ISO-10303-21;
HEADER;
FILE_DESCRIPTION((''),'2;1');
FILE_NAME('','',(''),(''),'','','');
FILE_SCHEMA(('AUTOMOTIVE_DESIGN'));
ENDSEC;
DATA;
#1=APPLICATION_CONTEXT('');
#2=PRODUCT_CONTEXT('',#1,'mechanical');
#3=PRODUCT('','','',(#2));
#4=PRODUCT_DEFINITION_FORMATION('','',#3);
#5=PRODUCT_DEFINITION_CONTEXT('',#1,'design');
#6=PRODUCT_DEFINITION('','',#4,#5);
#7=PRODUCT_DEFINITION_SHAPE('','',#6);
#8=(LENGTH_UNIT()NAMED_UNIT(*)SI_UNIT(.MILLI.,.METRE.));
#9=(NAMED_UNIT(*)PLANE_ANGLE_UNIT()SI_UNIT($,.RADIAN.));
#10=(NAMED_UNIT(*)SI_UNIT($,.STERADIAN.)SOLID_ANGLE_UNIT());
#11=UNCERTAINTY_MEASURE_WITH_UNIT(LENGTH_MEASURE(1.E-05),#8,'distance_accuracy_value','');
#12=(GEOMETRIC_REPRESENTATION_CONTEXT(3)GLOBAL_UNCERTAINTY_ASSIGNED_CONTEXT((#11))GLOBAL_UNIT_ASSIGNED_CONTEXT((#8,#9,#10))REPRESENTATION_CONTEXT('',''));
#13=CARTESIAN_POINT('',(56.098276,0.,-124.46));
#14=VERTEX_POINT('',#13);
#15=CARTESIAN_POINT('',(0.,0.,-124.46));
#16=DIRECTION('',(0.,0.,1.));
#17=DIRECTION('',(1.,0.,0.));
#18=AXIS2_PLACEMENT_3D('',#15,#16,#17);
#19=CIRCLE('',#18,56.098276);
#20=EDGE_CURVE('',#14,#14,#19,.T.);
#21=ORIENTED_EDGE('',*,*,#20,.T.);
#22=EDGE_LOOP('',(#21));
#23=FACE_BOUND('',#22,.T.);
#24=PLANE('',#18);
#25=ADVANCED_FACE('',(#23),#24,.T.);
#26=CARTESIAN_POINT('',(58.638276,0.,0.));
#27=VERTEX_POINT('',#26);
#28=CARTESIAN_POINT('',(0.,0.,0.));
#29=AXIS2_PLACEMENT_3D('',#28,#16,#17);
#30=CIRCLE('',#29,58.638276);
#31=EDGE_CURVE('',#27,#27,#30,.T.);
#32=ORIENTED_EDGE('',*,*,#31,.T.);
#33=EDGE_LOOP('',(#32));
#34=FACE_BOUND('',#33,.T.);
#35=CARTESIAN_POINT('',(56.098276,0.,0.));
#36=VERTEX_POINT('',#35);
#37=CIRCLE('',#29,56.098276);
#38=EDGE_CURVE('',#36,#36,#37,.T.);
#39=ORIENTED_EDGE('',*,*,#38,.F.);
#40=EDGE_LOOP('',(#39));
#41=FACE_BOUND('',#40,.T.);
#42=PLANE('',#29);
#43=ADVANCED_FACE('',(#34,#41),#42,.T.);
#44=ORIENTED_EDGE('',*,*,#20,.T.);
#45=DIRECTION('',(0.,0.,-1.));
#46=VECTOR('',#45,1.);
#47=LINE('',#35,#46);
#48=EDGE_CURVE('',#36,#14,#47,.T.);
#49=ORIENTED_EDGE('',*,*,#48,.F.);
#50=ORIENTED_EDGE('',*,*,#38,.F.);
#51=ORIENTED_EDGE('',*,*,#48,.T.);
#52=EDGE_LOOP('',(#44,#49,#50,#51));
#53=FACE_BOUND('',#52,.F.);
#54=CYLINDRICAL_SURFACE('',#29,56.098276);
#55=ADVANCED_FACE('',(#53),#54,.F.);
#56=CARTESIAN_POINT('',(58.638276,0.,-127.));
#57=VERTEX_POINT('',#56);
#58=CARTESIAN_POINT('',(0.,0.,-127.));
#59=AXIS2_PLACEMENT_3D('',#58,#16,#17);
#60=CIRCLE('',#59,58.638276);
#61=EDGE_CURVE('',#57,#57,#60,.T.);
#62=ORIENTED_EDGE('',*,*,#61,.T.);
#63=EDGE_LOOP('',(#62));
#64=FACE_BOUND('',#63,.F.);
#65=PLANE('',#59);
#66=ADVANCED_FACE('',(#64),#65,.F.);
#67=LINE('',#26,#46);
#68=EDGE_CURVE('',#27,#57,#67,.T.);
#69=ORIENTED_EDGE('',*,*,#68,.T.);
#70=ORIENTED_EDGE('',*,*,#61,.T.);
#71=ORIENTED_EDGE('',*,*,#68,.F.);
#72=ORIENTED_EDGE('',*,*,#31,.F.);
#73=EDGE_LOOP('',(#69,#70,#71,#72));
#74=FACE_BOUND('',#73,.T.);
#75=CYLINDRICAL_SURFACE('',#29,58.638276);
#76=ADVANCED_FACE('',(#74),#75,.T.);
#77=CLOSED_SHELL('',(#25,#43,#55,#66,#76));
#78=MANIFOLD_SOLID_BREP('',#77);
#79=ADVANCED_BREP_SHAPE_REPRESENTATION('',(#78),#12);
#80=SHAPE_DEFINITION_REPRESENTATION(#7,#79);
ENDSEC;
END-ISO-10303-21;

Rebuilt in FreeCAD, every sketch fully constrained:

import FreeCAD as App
import Part
import Sketcher
from FreeCAD import Vector
Q = App.Units.Quantity


def faces_at(feature, points):
    """Names of the faces that lie closest to the given points."""
    faces = feature.Shape.Faces
    near = lambda p: min(range(len(faces)), key=lambda i: faces[i].distToShape(Part.Vertex(*p))[0])
    return sorted({f"Face{near(p) + 1}" for p in points})

doc = App.newDocument("Part")
body = doc.addObject("PartDesign::Body", "Body")

sketch1 = doc.addObject("Sketcher::SketchObject", "Sketch")
body.addObject(sketch1)
sketch1.AttachmentSupport = (doc.XY_Plane, [""])
sketch1.MapMode = "FlatFace"
sketch1.addGeometry(Part.Circle(Vector(0, 0, 0), Vector(0, 0, 1), 59), False)
sketch1.addConstraint([
    Sketcher.Constraint("Coincident", 0, 3, -1, 1),
    Sketcher.Constraint("Diameter", 0, 117.276552),
])
pad1 = doc.addObject("PartDesign::Pad", "Pad")
body.addObject(pad1)
pad1.Profile = sketch1
pad1.Length = Q("5 in")
pad1.Reversed = True
doc.recompute()

thickness = doc.addObject("PartDesign::Thickness", "Thickness")
body.addObject(thickness)
thickness.Base = (pad1, faces_at(pad1, [(0, 0, 0)]))
thickness.Value = Q("0.1 in")
thickness.Reversed = True
thickness.Join = "Arc"

doc.recompute()
